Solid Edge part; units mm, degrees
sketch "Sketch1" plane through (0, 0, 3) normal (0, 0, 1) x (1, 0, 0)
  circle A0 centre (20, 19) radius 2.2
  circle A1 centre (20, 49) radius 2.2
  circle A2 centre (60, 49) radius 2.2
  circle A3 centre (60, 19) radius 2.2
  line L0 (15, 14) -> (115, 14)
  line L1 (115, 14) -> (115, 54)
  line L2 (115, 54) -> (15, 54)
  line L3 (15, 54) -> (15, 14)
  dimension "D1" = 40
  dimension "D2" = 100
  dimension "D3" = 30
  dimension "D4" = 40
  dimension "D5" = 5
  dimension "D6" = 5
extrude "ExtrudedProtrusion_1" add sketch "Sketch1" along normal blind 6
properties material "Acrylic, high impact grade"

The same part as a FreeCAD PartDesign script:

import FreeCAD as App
import Part
import Sketcher
from FreeCAD import Vector

doc = App.newDocument("Part")
body = doc.addObject("PartDesign::Body", "Body")

# Sketch on XY plane
sketch1 = body.newObject("Sketcher::SketchObject", "Sketch")
sketch1.AttachmentSupport = (doc.getObject("XY_Plane"), [""])
sketch1.MapMode = "FlatFace"
sketch1.AttachmentOffset = App.Placement(Vector(0, 0, 3), App.Rotation())
sketch1.addGeometry([
    Part.LineSegment(Vector(15, 54, 0), Vector(15, 14, 0)),  # 0
    Part.LineSegment(Vector(15, 14, 0), Vector(115, 14, 0)),  # 1
    Part.LineSegment(Vector(115, 14, 0), Vector(115, 54, 0)),  # 2
    Part.LineSegment(Vector(115, 54, 0), Vector(15, 54, 0)),  # 3
    Part.Circle(Vector(20, 19, 0), Vector(0, 0, 1), 2.2),  # 4
    Part.Circle(Vector(60, 19, 0), Vector(0, 0, 1), 2.2),  # 5
    Part.Circle(Vector(20, 49, 0), Vector(0, 0, 1), 2.2),  # 6
    Part.Circle(Vector(60, 49, 0), Vector(0, 0, 1), 2.2),  # 7
], False)
sketch1.addConstraint([
    Sketcher.Constraint("Coincident", 0, 2, 1, 1),
    Sketcher.Constraint("Coincident", 1, 2, 2, 1),
    Sketcher.Constraint("Coincident", 2, 2, 3, 1),
    Sketcher.Constraint("Coincident", 3, 2, 0, 1),
    Sketcher.Constraint("Vertical", 0),
    Sketcher.Constraint("Horizontal", 1),
    Sketcher.Constraint("Vertical", 2),
    Sketcher.Constraint("Horizontal", 3),
    Sketcher.Constraint("Equal", 4, 5),
    Sketcher.Constraint("Equal", 5, 6),
    Sketcher.Constraint("Equal", 6, 7),
    Sketcher.Constraint("Horizontal", 4, 3, 5, 3),
    Sketcher.Constraint("Horizontal", 6, 3, 7, 3),
    Sketcher.Constraint("Vertical", 4, 3, 6, 3),
    Sketcher.Constraint("Vertical", 5, 3, 7, 3),
    Sketcher.Constraint("DistanceX", -1, 1, 4, 3, 20.0),
    Sketcher.Constraint("DistanceX", -1, 1, 0, 2, 15.0),
    Sketcher.Constraint("DistanceX", -1, 1, 1, 2, 115.0),
    Sketcher.Constraint("Diameter", 4, 4.4),
    Sketcher.Constraint("DistanceY", 0, 2, 0, 1, 40.0),
    Sketcher.Constraint("DistanceY", -1, 1, 4, 3, 19.0),
    Sketcher.Constraint("DistanceX", -1, 1, 5, 3, 60.0),
    Sketcher.Constraint("DistanceY", -1, 1, 6, 3, 49.0),
    Sketcher.Constraint("DistanceY", -1, 1, 0, 2, 14.0),
])
pad1 = body.newObject("PartDesign::Pad", "Pad")
pad1.Profile = sketch1
pad1.Length = 6

doc.recompute()
